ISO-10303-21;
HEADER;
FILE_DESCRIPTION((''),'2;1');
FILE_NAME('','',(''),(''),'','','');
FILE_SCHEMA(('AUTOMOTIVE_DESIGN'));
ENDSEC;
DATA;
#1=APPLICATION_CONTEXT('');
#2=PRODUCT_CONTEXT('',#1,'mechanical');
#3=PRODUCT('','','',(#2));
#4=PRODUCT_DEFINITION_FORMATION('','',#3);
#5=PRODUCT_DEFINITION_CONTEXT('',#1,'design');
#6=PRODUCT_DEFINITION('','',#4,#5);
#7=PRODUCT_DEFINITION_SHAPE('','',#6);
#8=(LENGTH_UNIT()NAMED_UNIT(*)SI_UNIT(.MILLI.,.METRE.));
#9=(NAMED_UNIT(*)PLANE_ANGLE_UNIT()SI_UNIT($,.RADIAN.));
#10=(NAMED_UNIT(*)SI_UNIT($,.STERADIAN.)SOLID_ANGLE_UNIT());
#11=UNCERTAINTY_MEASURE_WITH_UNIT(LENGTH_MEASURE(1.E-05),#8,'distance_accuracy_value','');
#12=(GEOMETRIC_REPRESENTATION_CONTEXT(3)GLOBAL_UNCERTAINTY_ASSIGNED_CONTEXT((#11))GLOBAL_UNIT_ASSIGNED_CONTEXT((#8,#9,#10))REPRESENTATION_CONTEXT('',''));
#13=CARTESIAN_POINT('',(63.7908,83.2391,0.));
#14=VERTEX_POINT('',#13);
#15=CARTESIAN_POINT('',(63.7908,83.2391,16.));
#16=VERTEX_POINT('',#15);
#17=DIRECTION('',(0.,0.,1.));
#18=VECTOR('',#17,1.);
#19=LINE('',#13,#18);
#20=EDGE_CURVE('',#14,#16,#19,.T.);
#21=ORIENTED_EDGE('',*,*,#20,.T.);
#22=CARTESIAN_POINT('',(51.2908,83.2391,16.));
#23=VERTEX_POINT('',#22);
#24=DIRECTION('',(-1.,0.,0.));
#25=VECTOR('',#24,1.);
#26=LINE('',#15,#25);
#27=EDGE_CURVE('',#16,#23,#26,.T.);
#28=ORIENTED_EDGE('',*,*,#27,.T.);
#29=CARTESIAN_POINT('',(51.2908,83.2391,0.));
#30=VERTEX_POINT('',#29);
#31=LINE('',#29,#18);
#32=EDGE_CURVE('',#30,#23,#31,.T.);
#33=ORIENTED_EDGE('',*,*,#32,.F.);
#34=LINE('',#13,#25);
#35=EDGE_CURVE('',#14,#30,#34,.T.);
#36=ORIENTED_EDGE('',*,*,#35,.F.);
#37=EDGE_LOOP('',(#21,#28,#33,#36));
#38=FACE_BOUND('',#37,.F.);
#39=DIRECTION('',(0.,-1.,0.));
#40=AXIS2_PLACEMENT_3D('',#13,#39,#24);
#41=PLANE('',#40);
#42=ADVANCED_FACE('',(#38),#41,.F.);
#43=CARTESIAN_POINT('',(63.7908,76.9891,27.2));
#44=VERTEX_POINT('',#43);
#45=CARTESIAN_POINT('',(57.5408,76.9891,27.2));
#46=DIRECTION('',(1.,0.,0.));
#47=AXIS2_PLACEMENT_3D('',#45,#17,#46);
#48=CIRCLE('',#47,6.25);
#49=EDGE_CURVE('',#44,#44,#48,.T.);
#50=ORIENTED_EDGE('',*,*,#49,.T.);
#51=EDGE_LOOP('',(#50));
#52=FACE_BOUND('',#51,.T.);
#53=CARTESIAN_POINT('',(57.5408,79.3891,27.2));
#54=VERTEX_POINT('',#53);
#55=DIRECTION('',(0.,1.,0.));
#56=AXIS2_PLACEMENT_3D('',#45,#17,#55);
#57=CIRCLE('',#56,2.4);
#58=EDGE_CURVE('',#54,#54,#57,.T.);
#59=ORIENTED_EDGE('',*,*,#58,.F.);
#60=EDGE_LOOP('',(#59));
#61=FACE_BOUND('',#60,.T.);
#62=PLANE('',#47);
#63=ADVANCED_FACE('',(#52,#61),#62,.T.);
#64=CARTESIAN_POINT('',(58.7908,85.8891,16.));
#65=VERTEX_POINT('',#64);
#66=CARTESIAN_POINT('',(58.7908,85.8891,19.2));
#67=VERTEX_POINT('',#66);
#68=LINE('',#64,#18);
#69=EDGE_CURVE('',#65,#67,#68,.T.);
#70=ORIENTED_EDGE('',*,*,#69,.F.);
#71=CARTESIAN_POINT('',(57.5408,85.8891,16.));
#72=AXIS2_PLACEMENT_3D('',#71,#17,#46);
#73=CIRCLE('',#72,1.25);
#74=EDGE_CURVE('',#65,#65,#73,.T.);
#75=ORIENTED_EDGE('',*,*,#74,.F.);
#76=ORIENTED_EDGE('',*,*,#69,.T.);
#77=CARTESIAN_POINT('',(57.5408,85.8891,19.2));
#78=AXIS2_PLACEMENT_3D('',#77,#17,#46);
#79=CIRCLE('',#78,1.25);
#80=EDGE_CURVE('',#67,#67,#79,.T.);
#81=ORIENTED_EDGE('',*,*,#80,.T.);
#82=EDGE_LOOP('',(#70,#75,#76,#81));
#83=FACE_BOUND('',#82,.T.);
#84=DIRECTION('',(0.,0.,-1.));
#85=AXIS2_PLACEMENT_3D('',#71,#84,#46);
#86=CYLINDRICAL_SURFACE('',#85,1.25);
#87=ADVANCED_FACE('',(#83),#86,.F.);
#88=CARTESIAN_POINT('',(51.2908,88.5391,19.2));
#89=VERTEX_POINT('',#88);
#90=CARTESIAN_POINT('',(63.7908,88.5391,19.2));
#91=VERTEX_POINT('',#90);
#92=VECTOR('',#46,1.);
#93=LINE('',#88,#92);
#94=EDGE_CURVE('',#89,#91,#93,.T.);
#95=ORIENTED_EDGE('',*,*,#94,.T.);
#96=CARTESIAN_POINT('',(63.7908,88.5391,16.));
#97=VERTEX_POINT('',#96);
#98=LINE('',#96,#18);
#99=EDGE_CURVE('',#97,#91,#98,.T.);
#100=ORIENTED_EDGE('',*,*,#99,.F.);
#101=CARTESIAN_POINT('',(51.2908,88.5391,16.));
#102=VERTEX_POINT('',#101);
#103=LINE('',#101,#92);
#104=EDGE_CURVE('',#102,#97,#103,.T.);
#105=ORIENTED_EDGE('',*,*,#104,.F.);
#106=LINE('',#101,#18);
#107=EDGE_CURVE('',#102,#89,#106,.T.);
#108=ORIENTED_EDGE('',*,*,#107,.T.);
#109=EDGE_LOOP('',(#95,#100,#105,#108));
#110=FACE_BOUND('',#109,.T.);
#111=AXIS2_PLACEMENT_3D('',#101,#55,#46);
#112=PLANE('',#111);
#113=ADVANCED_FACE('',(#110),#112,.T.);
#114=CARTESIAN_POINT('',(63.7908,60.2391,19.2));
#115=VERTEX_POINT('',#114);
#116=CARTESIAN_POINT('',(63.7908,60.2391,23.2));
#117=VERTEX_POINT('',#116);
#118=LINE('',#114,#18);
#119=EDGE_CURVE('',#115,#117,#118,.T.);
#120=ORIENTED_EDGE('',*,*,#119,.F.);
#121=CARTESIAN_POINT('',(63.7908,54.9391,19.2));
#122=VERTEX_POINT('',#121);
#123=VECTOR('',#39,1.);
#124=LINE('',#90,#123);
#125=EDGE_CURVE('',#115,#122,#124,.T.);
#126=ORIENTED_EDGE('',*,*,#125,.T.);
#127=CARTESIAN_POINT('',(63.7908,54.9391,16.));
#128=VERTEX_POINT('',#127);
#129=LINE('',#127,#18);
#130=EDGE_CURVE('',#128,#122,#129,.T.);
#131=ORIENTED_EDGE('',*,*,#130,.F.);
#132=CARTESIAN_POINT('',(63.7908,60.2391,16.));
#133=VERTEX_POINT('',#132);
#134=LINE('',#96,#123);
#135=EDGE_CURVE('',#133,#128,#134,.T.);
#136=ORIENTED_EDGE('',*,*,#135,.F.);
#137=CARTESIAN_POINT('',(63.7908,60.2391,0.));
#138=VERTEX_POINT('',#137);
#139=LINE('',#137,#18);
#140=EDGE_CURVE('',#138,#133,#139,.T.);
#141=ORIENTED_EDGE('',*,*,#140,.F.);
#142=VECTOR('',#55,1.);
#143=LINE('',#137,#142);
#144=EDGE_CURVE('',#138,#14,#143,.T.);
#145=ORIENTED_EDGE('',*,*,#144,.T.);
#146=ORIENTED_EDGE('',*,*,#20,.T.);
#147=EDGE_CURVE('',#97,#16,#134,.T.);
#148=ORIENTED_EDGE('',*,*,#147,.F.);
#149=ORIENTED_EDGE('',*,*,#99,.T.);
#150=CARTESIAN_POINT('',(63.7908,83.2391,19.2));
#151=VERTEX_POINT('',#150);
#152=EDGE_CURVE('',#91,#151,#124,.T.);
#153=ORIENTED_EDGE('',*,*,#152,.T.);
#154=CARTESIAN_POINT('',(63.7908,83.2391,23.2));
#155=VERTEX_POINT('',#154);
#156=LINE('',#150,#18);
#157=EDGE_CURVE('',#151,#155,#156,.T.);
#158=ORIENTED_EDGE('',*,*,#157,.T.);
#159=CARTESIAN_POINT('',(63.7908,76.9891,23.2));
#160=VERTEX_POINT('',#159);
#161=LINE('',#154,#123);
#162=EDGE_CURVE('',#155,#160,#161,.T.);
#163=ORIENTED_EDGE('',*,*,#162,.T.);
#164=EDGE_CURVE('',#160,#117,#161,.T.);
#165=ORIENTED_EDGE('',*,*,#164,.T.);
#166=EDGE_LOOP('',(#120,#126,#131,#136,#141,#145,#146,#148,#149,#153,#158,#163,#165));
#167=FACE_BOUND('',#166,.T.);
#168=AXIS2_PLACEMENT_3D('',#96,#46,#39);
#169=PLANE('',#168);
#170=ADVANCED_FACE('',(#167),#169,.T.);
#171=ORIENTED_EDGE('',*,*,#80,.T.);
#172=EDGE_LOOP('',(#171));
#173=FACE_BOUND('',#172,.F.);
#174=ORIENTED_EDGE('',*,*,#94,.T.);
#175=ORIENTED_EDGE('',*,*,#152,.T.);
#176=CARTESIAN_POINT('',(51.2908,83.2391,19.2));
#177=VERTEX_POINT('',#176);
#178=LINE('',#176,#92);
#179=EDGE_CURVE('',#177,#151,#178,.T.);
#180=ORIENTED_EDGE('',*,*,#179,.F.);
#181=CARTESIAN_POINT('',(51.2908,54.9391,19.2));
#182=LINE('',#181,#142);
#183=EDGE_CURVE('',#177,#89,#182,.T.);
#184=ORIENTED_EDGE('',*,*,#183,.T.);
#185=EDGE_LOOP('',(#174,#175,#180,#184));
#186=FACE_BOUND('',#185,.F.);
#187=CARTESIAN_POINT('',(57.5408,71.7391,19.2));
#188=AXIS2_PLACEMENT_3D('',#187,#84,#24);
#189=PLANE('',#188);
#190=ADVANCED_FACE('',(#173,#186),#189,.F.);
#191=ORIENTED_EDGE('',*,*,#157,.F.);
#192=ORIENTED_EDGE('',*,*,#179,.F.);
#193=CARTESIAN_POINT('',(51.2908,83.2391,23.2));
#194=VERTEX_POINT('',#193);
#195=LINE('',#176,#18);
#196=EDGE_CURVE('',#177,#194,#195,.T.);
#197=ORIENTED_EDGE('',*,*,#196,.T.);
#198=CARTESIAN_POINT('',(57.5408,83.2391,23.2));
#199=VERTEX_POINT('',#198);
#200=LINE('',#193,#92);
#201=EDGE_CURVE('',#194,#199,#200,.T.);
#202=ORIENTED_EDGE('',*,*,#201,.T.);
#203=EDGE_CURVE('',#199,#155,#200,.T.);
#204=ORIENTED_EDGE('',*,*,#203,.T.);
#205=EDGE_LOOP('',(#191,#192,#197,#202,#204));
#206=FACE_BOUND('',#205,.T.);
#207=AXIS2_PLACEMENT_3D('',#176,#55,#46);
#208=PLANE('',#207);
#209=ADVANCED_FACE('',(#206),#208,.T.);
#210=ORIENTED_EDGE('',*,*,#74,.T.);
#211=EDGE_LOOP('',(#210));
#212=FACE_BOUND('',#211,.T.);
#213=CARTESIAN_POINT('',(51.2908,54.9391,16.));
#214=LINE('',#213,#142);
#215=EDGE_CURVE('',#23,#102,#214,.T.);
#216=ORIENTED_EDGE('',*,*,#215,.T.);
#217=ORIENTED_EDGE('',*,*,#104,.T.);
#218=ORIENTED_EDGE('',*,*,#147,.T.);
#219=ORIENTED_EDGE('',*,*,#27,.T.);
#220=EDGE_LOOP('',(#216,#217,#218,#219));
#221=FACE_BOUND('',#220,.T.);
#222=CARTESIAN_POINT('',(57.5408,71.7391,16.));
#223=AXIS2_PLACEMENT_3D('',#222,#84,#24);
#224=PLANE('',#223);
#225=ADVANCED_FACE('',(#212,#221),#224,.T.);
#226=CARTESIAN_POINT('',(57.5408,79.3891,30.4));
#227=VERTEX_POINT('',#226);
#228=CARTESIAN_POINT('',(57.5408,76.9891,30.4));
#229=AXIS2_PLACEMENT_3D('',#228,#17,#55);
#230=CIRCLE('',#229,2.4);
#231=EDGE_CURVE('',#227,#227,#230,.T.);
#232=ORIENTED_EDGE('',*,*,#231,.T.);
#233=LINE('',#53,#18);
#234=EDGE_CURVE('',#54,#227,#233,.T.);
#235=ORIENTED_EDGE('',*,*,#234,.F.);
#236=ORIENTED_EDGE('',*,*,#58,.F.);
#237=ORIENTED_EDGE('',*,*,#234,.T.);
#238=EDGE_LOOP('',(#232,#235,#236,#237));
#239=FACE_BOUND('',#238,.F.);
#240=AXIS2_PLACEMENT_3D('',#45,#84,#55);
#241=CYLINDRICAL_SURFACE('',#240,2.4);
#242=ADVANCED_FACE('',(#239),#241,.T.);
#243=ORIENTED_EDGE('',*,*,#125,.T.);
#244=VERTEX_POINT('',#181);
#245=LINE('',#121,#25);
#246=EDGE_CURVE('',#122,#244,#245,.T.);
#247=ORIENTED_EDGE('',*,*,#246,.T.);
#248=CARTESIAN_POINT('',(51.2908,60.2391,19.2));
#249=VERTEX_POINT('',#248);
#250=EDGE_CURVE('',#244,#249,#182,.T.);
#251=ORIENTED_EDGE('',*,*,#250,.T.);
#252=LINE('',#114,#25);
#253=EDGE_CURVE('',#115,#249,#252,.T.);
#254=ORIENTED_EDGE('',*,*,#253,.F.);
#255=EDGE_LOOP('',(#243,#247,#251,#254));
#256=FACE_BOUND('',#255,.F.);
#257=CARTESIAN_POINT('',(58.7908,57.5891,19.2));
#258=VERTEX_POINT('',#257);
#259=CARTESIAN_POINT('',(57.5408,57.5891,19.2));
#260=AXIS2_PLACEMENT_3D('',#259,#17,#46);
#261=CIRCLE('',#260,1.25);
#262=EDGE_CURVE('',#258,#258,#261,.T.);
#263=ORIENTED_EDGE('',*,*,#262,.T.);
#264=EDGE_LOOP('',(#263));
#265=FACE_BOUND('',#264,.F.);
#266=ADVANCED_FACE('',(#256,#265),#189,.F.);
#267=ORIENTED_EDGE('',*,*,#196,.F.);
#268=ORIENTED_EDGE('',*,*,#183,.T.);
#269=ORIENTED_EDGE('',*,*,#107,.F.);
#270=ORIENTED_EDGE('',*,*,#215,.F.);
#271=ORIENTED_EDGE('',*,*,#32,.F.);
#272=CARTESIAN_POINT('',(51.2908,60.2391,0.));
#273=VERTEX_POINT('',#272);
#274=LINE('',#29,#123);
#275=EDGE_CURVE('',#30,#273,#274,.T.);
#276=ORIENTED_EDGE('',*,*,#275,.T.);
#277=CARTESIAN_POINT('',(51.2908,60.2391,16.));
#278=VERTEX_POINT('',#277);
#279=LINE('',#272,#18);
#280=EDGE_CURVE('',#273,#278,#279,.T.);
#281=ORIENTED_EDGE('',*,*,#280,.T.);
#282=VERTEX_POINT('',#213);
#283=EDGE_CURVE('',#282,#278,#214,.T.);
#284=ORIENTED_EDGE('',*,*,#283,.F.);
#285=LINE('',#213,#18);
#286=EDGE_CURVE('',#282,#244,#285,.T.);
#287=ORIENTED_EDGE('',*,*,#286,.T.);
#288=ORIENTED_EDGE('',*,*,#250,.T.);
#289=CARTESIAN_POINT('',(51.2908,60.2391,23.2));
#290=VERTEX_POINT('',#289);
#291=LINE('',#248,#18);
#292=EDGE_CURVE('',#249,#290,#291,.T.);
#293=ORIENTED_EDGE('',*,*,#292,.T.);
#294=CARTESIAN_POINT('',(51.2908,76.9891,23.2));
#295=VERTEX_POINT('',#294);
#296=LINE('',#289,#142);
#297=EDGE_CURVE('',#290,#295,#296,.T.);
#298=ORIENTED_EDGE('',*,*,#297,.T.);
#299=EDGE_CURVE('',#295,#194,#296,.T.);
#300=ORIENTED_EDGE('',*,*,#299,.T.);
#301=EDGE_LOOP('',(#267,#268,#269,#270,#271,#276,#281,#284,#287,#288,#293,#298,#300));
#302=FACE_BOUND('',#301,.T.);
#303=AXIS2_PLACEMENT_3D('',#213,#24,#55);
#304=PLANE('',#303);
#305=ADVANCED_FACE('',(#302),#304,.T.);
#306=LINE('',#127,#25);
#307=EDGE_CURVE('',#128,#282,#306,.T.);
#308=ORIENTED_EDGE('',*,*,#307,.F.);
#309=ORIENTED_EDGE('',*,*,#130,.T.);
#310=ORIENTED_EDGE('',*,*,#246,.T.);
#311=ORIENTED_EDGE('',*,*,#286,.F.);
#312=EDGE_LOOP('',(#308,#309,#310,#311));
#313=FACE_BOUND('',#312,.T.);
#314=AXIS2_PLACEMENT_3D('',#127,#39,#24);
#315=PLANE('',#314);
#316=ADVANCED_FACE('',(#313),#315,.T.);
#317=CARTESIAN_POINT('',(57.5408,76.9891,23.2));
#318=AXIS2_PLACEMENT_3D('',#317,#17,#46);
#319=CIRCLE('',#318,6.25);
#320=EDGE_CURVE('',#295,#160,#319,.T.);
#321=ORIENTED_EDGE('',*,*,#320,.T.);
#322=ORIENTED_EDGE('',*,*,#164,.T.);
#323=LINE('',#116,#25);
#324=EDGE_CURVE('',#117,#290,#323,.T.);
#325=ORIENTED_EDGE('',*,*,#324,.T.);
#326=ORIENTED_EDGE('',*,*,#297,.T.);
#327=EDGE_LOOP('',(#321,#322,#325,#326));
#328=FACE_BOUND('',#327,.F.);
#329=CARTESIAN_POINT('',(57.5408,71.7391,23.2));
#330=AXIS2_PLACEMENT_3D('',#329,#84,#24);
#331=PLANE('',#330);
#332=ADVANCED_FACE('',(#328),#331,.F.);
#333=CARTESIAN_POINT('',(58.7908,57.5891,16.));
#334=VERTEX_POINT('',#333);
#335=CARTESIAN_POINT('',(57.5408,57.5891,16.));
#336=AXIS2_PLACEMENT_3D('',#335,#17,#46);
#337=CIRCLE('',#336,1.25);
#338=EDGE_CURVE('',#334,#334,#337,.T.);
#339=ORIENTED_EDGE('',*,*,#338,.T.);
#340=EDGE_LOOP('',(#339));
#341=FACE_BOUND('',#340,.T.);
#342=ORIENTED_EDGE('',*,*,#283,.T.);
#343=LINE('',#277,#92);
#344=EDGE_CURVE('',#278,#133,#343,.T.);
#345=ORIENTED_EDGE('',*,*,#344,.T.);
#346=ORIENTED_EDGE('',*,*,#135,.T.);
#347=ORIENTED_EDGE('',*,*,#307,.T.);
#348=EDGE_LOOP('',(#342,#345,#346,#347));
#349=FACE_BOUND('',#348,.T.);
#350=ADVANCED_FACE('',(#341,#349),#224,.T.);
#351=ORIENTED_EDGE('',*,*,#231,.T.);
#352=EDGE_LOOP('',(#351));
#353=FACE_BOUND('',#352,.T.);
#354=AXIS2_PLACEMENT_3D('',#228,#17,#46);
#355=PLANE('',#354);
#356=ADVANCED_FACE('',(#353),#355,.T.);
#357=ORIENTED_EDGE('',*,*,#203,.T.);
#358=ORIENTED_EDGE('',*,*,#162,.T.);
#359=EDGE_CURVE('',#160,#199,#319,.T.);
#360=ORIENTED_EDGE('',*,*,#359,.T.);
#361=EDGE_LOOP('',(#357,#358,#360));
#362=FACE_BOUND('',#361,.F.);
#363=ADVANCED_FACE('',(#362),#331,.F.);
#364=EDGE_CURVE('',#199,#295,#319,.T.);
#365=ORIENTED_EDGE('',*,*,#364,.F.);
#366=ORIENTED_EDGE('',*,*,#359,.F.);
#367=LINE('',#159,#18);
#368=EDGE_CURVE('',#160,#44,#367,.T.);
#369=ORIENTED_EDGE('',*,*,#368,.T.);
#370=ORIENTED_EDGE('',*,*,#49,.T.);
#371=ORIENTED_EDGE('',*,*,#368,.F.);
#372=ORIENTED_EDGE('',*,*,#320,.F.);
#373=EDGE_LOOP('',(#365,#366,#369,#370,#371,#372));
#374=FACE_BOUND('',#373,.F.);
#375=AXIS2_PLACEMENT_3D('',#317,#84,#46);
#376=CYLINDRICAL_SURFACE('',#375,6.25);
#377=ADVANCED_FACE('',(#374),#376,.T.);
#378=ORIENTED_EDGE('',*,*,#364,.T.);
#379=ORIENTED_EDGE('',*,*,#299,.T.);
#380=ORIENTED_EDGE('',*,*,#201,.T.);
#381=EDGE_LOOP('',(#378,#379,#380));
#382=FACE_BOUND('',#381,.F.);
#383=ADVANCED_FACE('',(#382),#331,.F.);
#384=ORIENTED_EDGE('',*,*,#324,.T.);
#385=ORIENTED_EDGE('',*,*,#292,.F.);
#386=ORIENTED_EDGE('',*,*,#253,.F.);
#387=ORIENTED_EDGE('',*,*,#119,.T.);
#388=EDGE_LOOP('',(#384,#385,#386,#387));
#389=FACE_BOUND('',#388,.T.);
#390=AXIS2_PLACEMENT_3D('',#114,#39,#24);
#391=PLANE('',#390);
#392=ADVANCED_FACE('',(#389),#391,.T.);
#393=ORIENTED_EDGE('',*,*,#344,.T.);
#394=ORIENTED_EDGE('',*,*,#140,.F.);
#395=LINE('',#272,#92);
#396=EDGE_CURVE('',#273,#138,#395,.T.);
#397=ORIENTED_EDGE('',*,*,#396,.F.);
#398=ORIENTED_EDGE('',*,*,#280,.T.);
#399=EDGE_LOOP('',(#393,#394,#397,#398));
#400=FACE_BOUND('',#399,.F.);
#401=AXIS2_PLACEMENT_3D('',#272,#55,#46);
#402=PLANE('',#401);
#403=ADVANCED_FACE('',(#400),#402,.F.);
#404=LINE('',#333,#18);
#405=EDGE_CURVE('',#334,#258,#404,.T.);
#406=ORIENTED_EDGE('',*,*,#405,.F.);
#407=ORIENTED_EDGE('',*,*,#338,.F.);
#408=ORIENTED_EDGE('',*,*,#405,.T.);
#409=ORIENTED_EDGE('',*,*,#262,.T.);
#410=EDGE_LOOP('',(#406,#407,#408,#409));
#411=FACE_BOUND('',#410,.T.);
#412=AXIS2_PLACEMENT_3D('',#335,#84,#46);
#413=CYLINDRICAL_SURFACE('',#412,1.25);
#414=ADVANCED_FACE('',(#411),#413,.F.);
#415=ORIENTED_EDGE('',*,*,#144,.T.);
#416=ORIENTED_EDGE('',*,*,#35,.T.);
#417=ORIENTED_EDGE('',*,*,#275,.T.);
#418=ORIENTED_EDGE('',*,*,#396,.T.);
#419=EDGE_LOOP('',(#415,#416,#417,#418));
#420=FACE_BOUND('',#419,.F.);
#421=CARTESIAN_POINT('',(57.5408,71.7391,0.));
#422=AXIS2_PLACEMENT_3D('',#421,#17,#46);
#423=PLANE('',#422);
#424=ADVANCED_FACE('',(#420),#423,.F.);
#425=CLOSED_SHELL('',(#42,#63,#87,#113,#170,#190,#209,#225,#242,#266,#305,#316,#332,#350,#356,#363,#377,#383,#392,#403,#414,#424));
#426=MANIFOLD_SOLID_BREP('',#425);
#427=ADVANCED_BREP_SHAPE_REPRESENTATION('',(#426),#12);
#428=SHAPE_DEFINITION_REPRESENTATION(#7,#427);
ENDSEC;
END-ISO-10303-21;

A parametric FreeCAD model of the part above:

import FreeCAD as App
import Part
import Sketcher

doc = App.newDocument("Part")
body = doc.addObject("PartDesign::Body", "Body")

sketch1 = body.newObject("Sketcher::SketchObject", "Sketch")
sketch1.AttachmentSupport = (doc.getObject("XY_Plane"), [""])
sketch1.MapMode = "FlatFace"
sketch1.addGeometry(Part.LineSegment(App.Vector(51, 83, 0), App.Vector(51, 60, 0)), False)
sketch1.addGeometry(Part.LineSegment(App.Vector(51, 60, 0), App.Vector(64, 60, 0)), False)
sketch1.addGeometry(Part.LineSegment(App.Vector(64, 60, 0), App.Vector(64, 83, 0)), False)
sketch1.addGeometry(Part.LineSegment(App.Vector(64, 83, 0), App.Vector(51, 83, 0)), False)
sketch1.addConstraint(Sketcher.Constraint("Coincident", 0, 2, 1, 1))
sketch1.addConstraint(Sketcher.Constraint("Coincident", 1, 2, 2, 1))
sketch1.addConstraint(Sketcher.Constraint("Coincident", 2, 2, 3, 1))
sketch1.addConstraint(Sketcher.Constraint("Coincident", 3, 2, 0, 1))
sketch1.addConstraint(Sketcher.Constraint("Vertical", 0))
sketch1.addConstraint(Sketcher.Constraint("Horizontal", 1))
sketch1.addConstraint(Sketcher.Constraint("Vertical", 2))
sketch1.addConstraint(Sketcher.Constraint("Horizontal", 3))
sketch1.addConstraint(Sketcher.Constraint("DistanceY", 0, 2, 0, 1, 23.0))
sketch1.addConstraint(Sketcher.Constraint("DistanceX", 1, 1, 1, 2, 12.5))
sketch1.addConstraint(Sketcher.Constraint("DistanceY", -1, 1, 0, 2, 60.239))
sketch1.addConstraint(Sketcher.Constraint("DistanceX", -1, 1, 0, 2, 51.2908))
pad1 = body.newObject("PartDesign::Pad", "Pad")
pad1.Profile = sketch1
pad1.Length = 16

sketch2 = body.newObject("Sketcher::SketchObject", "Sketch001")
sketch2.AttachmentSupport = (doc.getObject("XY_Plane"), [""])
sketch2.MapMode = "FlatFace"
sketch2.AttachmentOffset = App.Placement(App.Vector(0, 0, 16), App.Rotation())
sketch2.addGeometry(Part.LineSegment(App.Vector(63.8, 88.5, 0), App.Vector(51.3, 88.5, 0)), False)
sketch2.addGeometry(Part.LineSegment(App.Vector(51.3, 88.5, 0), App.Vector(51.3, 54.9, 0)), False)
sketch2.addGeometry(Part.LineSegment(App.Vector(51.3, 54.9, 0), App.Vector(63.8, 54.9, 0)), False)
sketch2.addGeometry(Part.LineSegment(App.Vector(63.8, 54.9, 0), App.Vector(63.8, 88.5, 0)), False)
sketch2.addGeometry(Part.Circle(App.Vector(57.5, 57.6, 0), App.Vector(0, 0, 1), 1.2), False)
sketch2.addGeometry(Part.Circle(App.Vector(57.5, 85.9, 0), App.Vector(0, 0, 1), 1.2), False)
sketch2.addConstraint(Sketcher.Constraint("Coincident", 0, 2, 1, 1))
sketch2.addConstraint(Sketcher.Constraint("Coincident", 1, 2, 2, 1))
sketch2.addConstraint(Sketcher.Constraint("Coincident", 2, 2, 3, 1))
sketch2.addConstraint(Sketcher.Constraint("Coincident", 3, 2, 0, 1))
sketch2.addConstraint(Sketcher.Constraint("Horizontal", 0))
sketch2.addConstraint(Sketcher.Constraint("Vertical", 1))
sketch2.addConstraint(Sketcher.Constraint("Horizontal", 2))
sketch2.addConstraint(Sketcher.Constraint("Vertical", 3))
sketch2.addConstraint(Sketcher.Constraint("Equal", 4, 5))
sketch2.addConstraint(Sketcher.Constraint("Vertical", 4, 3, 5, 3))
sketch2.addConstraint(Sketcher.Constraint("Diameter", 4, 2.5))
sketch2.addConstraint(Sketcher.Constraint("DistanceX", 0, 2, 0, 1, 12.5))
sketch2.addConstraint(Sketcher.Constraint("DistanceY", 1, 2, 1, 1, 33.6))
sketch2.addConstraint(Sketcher.Constraint("DistanceY", 4, 3, 5, 3, 28.3))
sketch2.addConstraint(Sketcher.Constraint("DistanceX", 0, 2, 5, 3, 6.25))
sketch2.addConstraint(Sketcher.Constraint("DistanceY", 5, 3, 0, 2, 2.65))
sketch2.addConstraint(Sketcher.Constraint("DistanceY", -1, 1, 4, 3, 57.589))
sketch2.addConstraint(Sketcher.Constraint("DistanceX", -1, 1, 4, 3, 57.5408))
pad2 = body.newObject("PartDesign::Pad", "Pad001")
pad2.Profile = sketch2
pad2.Length = 3.2

sketch3 = body.newObject("Sketcher::SketchObject", "Sketch002")
sketch3.AttachmentSupport = (doc.getObject("XY_Plane"), [""])
sketch3.MapMode = "FlatFace"
sketch3.AttachmentOffset = App.Placement(App.Vector(0, 0, 19.2), App.Rotation())
sketch3.addGeometry(Part.LineSegment(App.Vector(64, 83, 0), App.Vector(51, 83, 0)), False)
sketch3.addGeometry(Part.LineSegment(App.Vector(51, 83, 0), App.Vector(51, 60, 0)), False)
sketch3.addGeometry(Part.LineSegment(App.Vector(51, 60, 0), App.Vector(64, 60, 0)), False)
sketch3.addGeometry(Part.LineSegment(App.Vector(64, 60, 0), App.Vector(64, 83, 0)), False)
sketch3.addConstraint(Sketcher.Constraint("Coincident", 0, 2, 1, 1))
sketch3.addConstraint(Sketcher.Constraint("Coincident", 1, 2, 2, 1))
sketch3.addConstraint(Sketcher.Constraint("Coincident", 2, 2, 3, 1))
sketch3.addConstraint(Sketcher.Constraint("Coincident", 3, 2, 0, 1))
sketch3.addConstraint(Sketcher.Constraint("Horizontal", 0))
sketch3.addConstraint(Sketcher.Constraint("Vertical", 1))
sketch3.addConstraint(Sketcher.Constraint("Horizontal", 2))
sketch3.addConstraint(Sketcher.Constraint("Vertical", 3))
sketch3.addConstraint(Sketcher.Constraint("DistanceY", 1, 2, 1, 1, 23.0))
sketch3.addConstraint(Sketcher.Constraint("DistanceX", 0, 2, 0, 1, 12.5))
sketch3.addConstraint(Sketcher.Constraint("DistanceY", -1, 1, 0, 2, 83.239))
sketch3.addConstraint(Sketcher.Constraint("DistanceX", -1, 1, 0, 2, 51.2908))
pad3 = body.newObject("PartDesign::Pad", "Pad002")
pad3.Profile = sketch3
pad3.Length = 4

sketch4 = body.newObject("Sketcher::SketchObject", "Sketch003")
sketch4.AttachmentSupport = (doc.getObject("XY_Plane"), [""])
sketch4.MapMode = "FlatFace"
sketch4.AttachmentOffset = App.Placement(App.Vector(0, 0, 23.2), App.Rotation())
sketch4.addGeometry(Part.Circle(App.Vector(58, 77, 0), App.Vector(0, 0, 1), 6), False)
sketch4.addConstraint(Sketcher.Constraint("Diameter", 0, 12.5))
sketch4.addConstraint(Sketcher.Constraint("DistanceY", -1, 1, 0, 3, 76.989))
sketch4.addConstraint(Sketcher.Constraint("DistanceX", -1, 1, 0, 3, 57.5408))
pad4 = body.newObject("PartDesign::Pad", "Pad003")
pad4.Profile = sketch4
pad4.Length = 4

sketch5 = body.newObject("Sketcher::SketchObject", "Sketch004")
sketch5.AttachmentSupport = (doc.getObject("XY_Plane"), [""])
sketch5.MapMode = "FlatFace"
sketch5.AttachmentOffset = App.Placement(App.Vector(0, 0, 27.2), App.Rotation())
sketch5.addGeometry(Part.Circle(App.Vector(57.5, 77, 0), App.Vector(0, 0, 1), 2.4), False)
sketch5.addConstraint(Sketcher.Constraint("Diameter", 0, 4.8))
sketch5.addConstraint(Sketcher.Constraint("DistanceY", -1, 1, 0, 3, 76.989))
sketch5.addConstraint(Sketcher.Constraint("DistanceX", -1, 1, 0, 3, 57.5408))
pad5 = body.newObject("PartDesign::Pad", "Pad004")
pad5.Profile = sketch5
pad5.Length = 3.2

doc.recompute()
